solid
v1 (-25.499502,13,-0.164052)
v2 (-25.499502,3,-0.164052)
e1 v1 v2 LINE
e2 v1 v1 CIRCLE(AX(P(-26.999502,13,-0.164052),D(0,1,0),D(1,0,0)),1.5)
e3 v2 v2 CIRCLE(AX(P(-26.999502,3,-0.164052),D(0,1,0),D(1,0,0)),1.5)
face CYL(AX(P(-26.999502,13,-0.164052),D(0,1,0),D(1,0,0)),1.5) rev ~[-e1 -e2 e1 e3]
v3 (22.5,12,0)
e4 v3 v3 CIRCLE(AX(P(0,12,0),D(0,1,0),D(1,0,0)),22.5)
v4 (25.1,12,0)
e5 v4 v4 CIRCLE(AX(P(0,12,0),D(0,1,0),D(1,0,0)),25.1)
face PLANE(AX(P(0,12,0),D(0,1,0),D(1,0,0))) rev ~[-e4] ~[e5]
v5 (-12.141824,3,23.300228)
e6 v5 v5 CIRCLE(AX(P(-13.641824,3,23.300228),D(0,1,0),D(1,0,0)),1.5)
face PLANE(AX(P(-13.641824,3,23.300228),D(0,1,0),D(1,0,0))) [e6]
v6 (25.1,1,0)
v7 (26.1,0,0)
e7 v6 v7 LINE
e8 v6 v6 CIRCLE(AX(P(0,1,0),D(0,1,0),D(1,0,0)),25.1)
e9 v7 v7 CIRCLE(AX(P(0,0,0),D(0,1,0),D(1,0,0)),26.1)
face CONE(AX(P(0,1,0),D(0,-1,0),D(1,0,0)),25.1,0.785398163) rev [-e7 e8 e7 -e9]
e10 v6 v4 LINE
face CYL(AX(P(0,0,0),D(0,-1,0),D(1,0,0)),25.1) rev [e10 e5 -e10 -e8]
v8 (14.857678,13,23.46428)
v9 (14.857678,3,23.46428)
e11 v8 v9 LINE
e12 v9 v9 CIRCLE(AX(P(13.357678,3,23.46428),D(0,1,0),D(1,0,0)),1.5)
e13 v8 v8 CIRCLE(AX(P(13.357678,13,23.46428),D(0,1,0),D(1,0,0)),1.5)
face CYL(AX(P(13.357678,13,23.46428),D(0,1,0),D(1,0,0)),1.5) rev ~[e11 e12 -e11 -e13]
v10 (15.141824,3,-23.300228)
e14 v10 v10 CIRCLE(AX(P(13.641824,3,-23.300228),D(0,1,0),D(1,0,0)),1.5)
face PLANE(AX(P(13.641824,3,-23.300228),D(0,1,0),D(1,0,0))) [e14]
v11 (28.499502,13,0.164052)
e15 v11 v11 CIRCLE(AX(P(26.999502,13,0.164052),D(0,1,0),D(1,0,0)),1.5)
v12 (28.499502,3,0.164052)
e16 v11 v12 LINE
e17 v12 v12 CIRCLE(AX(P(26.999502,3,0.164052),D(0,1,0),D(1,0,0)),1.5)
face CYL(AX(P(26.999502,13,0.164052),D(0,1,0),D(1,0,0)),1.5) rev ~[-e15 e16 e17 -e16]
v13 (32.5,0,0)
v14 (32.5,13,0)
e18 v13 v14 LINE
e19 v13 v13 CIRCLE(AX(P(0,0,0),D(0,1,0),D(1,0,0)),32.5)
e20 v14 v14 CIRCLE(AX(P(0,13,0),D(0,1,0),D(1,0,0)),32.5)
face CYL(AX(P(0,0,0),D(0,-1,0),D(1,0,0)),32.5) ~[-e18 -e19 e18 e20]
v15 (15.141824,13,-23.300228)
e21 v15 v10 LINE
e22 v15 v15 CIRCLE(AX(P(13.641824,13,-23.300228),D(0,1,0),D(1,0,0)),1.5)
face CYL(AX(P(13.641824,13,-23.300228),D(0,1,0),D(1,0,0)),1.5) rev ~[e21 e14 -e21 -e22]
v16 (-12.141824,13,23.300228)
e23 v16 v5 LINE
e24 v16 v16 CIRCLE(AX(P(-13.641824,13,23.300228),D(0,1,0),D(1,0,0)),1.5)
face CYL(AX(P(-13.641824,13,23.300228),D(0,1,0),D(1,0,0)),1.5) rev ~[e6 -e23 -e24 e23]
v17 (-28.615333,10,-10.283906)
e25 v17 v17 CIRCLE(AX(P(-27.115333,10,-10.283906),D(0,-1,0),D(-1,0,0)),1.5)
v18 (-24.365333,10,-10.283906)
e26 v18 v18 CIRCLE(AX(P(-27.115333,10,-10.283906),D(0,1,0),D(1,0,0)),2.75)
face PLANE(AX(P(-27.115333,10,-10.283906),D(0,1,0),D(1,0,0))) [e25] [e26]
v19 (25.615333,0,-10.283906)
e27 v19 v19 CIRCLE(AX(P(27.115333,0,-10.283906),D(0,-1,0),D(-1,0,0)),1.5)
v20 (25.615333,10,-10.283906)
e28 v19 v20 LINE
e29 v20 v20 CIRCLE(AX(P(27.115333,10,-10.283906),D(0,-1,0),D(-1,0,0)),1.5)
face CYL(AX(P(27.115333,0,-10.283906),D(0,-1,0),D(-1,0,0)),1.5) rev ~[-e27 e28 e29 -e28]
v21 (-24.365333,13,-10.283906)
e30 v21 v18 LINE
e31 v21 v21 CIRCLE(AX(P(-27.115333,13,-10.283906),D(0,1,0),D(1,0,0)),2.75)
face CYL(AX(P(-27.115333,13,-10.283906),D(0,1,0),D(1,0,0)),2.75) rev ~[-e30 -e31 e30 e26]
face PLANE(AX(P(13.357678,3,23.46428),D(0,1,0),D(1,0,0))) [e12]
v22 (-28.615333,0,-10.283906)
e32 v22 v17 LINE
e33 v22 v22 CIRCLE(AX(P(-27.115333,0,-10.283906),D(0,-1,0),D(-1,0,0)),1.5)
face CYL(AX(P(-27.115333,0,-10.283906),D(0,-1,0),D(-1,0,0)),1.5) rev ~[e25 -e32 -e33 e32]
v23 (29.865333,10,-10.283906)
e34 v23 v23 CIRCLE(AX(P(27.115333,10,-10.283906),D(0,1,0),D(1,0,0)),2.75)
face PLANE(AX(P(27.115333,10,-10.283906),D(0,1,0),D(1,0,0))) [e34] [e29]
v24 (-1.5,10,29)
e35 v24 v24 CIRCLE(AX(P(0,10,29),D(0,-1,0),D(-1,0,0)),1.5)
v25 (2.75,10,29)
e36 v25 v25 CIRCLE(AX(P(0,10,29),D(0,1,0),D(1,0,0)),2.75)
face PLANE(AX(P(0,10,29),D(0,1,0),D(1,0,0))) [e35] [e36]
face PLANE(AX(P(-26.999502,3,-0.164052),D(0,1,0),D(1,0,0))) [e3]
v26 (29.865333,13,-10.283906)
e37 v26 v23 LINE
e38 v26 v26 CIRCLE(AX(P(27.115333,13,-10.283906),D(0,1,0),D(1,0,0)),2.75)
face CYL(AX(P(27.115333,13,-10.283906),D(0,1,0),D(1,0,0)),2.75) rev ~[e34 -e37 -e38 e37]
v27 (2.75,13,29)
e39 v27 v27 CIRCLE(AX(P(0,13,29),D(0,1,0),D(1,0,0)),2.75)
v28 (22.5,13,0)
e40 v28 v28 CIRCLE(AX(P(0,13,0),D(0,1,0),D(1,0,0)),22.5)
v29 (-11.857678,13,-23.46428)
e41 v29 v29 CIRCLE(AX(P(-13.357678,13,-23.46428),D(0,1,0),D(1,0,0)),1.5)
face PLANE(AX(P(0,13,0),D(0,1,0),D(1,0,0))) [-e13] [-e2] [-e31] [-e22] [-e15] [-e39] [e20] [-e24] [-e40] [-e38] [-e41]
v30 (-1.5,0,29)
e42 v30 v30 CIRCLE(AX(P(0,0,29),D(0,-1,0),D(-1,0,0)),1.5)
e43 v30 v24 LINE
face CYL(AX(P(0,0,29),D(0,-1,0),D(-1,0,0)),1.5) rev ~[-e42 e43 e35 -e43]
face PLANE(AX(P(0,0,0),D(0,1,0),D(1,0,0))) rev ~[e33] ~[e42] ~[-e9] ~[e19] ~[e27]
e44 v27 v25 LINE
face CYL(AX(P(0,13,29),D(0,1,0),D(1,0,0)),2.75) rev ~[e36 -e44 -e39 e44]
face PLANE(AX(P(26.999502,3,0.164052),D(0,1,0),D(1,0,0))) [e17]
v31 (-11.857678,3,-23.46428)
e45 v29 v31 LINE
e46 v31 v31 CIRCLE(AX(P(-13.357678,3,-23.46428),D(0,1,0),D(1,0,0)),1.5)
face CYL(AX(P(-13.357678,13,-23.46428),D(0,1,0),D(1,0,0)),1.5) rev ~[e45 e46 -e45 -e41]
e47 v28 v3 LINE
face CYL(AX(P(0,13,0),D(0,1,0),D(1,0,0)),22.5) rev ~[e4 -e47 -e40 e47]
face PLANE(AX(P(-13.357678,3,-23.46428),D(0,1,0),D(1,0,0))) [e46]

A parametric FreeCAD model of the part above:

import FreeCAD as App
import Part
import Sketcher


def edges_at(feature, points):
    """Names of the edges that pass closest to the given points."""
    edges = feature.Shape.Edges
    near = lambda p: min(range(len(edges)), key=lambda i: edges[i].distToShape(Part.Vertex(*p))[0])
    return sorted({f"Edge{near(p) + 1}" for p in points})

doc = App.newDocument("Part")
body = doc.addObject("PartDesign::Body", "Body")

# Sketch on XZ plane
sketch1 = body.newObject("Sketcher::SketchObject", "Sketch")
sketch1.AttachmentSupport = (doc.getObject("XZ_Plane"), [""])
sketch1.MapMode = "FlatFace"
sketch1.addGeometry(Part.Circle(App.Vector(0, 0, 0), App.Vector(0, 0, 1), 32.5), False)
sketch1.addGeometry(Part.Circle(App.Vector(0, 0, 0), App.Vector(0, 0, 1), 25.1), False)
sketch1.addConstraint(Sketcher.Constraint("Coincident", 0, 3, -1, 1))
sketch1.addConstraint(Sketcher.Constraint("Coincident", 1, 3, -1, 1))
sketch1.addConstraint(Sketcher.Constraint("Diameter", 0, 65.0))
sketch1.addConstraint(Sketcher.Constraint("Diameter", 1, 50.2))
pad1 = body.newObject("PartDesign::Pad", "Pad")
pad1.Profile = sketch1
pad1.Length = 13
pad1.Reversed = True

# Sketch on XZ plane
sketch2 = body.newObject("Sketcher::SketchObject", "Sketch001")
sketch2.AttachmentSupport = (doc.getObject("XZ_Plane"), [""])
sketch2.MapMode = "FlatFace"
sketch2.AttachmentOffset = App.Placement(App.Vector(0, 0, -13), App.Rotation())
sketch2.addGeometry(Part.Circle(App.Vector(0, 0, 0), App.Vector(0, 0, 1), 25.1), False)
sketch2.addGeometry(Part.Circle(App.Vector(0, 0, 0), App.Vector(0, 0, 1), 22.5), False)
sketch2.addConstraint(Sketcher.Constraint("Coincident", 0, 3, -1, 1))
sketch2.addConstraint(Sketcher.Constraint("Coincident", 1, 3, -1, 1))
sketch2.addConstraint(Sketcher.Constraint("Diameter", 1, 45.0))
sketch2.addConstraint(Sketcher.Constraint("Diameter", 0, 50.2))
pad2 = body.newObject("PartDesign::Pad", "Pad001")
pad2.Profile = sketch2
pad2.Length = 1

# Sketch on XZ plane
sketch3 = body.newObject("Sketcher::SketchObject", "Sketch002")
sketch3.AttachmentSupport = (doc.getObject("XZ_Plane"), [""])
sketch3.MapMode = "FlatFace"
sketch3.addGeometry(Part.Circle(App.Vector(0, 29, 0), App.Vector(0, 0, 1), 1.5), False)
sketch3.addGeometry(Part.Circle(App.Vector(27.115333, -10.283906, 0), App.Vector(0, 0, 1), 1.5), False)
sketch3.addGeometry(Part.Circle(App.Vector(-27.115333, -10.283906, 0), App.Vector(0, 0, 1), 1.5), False)
sketch3.addConstraint(Sketcher.Constraint("Equal", 0, 1))
sketch3.addConstraint(Sketcher.Constraint("Equal", 1, 2))
sketch3.addConstraint(Sketcher.Constraint("Symmetric", 1, 3, 2, 3, -2))
sketch3.addConstraint(Sketcher.Constraint("PointOnObject", 0, 3, -2))
sketch3.addConstraint(Sketcher.Constraint("Diameter", 0, 3.0))
sketch3.addConstraint(Sketcher.Constraint("DistanceY", -1, 1, 0, 3, 29.0))
sketch3.addConstraint(Sketcher.Constraint("DistanceX", -1, 1, 1, 3, 27.115333))
sketch3.addConstraint(Sketcher.Constraint("DistanceY", 1, 3, -1, 1, 10.283906))
pocket1 = body.newObject("PartDesign::Pocket", "Pocket")
pocket1.Profile = sketch3
pocket1.Type = "ThroughAll"
doc.recompute()

chamfer = body.newObject("PartDesign::Chamfer", "Chamfer")
chamfer.Base = (pocket1, edges_at(pocket1, [(-25.1, 0, 0)]))
chamfer.Size = 1

# Sketch on XZ plane
sketch4 = body.newObject("Sketcher::SketchObject", "Sketch003")
sketch4.AttachmentSupport = (doc.getObject("XZ_Plane"), [""])
sketch4.MapMode = "FlatFace"
sketch4.AttachmentOffset = App.Placement(App.Vector(0, 0, -13), App.Rotation())
sketch4.addGeometry(Part.Circle(App.Vector(-27.115333, -10.283906, 0), App.Vector(0, 0, 1), 2.75), False)
sketch4.addGeometry(Part.Circle(App.Vector(27.115333, -10.283906, 0), App.Vector(0, 0, 1), 2.75), False)
sketch4.addGeometry(Part.Circle(App.Vector(0, 29, 0), App.Vector(0, 0, 1), 2.75), False)
sketch4.addConstraint(Sketcher.Constraint("Equal", 0, 1))
sketch4.addConstraint(Sketcher.Constraint("Equal", 1, 2))
sketch4.addConstraint(Sketcher.Constraint("Symmetric", 0, 3, 1, 3, -2))
sketch4.addConstraint(Sketcher.Constraint("PointOnObject", 2, 3, -2))
sketch4.addConstraint(Sketcher.Constraint("Diameter", 0, 5.5))
sketch4.addConstraint(Sketcher.Constraint("DistanceY", -1, 1, 2, 3, 29.0))
sketch4.addConstraint(Sketcher.Constraint("DistanceX", 0, 3, -1, 1, 27.115333))
sketch4.addConstraint(Sketcher.Constraint("DistanceY", 0, 3, -1, 1, 10.283906))
pocket2 = body.newObject("PartDesign::Pocket", "Pocket001")
pocket2.Profile = sketch4
pocket2.Length = 3
pocket2.Reversed = True

# Sketch on XZ plane
sketch5 = body.newObject("Sketcher::SketchObject", "Sketch004")
sketch5.AttachmentSupport = (doc.getObject("XZ_Plane"), [""])
sketch5.MapMode = "FlatFace"
sketch5.AttachmentOffset = App.Placement(App.Vector(0, 0, -13), App.Rotation())
sketch5.addGeometry(Part.Circle(App.Vector(13.641824, -23.300228, 0), App.Vector(0, 0, 1), 1.5), False)
sketch5.addGeometry(Part.Circle(App.Vector(26.999502, 0.164052, 0), App.Vector(0, 0, 1), 1.5), False)
sketch5.addGeometry(Part.Circle(App.Vector(13.357678, 23.46428, 0), App.Vector(0, 0, 1), 1.5), False)
sketch5.addGeometry(Part.Circle(App.Vector(-13.641824, 23.300228, 0), App.Vector(0, 0, 1), 1.5), False)
sketch5.addGeometry(Part.Circle(App.Vector(-26.999502, -0.164052, 0), App.Vector(0, 0, 1), 1.5), False)
sketch5.addGeometry(Part.Circle(App.Vector(-13.357678, -23.46428, 0), App.Vector(0, 0, 1), 1.5), False)
sketch5.addConstraint(Sketcher.Constraint("Equal", 0, 1))
sketch5.addConstraint(Sketcher.Constraint("Equal", 1, 2))
sketch5.addConstraint(Sketcher.Constraint("Equal", 2, 3))
sketch5.addConstraint(Sketcher.Constraint("Equal", 3, 4))
sketch5.addConstraint(Sketcher.Constraint("Equal", 4, 5))
sketch5.addConstraint(Sketcher.Constraint("Symmetric", 0, 3, 3, 3, -1, 1))
sketch5.addConstraint(Sketcher.Constraint("Symmetric", 1, 3, 4, 3, -1, 1))
sketch5.addConstraint(Sketcher.Constraint("Symmetric", 2, 3, 5, 3, -1, 1))
sketch5.addConstraint(Sketcher.Constraint("Diameter", 0, 3.0))
sketch5.addConstraint(Sketcher.Constraint("DistanceX", -1, 1, 1, 3, 26.999502))
sketch5.addConstraint(Sketcher.Constraint("DistanceX", 3, 3, 2, 3, 26.999502))
sketch5.addConstraint(Sketcher.Constraint("DistanceY", 0, 3, -1, 1, 23.300228))
sketch5.addConstraint(Sketcher.Constraint("DistanceY", -1, 1, 1, 3, 0.164052))
sketch5.addConstraint(Sketcher.Constraint("DistanceY", -1, 1, 2, 3, 23.46428))
sketch5.addConstraint(Sketcher.Constraint("DistanceX", 4, 3, 2, 3, 40.357179))
pocket3 = body.newObject("PartDesign::Pocket", "Pocket002")
pocket3.Profile = sketch5
pocket3.Length = 10
pocket3.Reversed = True

doc.recompute()
